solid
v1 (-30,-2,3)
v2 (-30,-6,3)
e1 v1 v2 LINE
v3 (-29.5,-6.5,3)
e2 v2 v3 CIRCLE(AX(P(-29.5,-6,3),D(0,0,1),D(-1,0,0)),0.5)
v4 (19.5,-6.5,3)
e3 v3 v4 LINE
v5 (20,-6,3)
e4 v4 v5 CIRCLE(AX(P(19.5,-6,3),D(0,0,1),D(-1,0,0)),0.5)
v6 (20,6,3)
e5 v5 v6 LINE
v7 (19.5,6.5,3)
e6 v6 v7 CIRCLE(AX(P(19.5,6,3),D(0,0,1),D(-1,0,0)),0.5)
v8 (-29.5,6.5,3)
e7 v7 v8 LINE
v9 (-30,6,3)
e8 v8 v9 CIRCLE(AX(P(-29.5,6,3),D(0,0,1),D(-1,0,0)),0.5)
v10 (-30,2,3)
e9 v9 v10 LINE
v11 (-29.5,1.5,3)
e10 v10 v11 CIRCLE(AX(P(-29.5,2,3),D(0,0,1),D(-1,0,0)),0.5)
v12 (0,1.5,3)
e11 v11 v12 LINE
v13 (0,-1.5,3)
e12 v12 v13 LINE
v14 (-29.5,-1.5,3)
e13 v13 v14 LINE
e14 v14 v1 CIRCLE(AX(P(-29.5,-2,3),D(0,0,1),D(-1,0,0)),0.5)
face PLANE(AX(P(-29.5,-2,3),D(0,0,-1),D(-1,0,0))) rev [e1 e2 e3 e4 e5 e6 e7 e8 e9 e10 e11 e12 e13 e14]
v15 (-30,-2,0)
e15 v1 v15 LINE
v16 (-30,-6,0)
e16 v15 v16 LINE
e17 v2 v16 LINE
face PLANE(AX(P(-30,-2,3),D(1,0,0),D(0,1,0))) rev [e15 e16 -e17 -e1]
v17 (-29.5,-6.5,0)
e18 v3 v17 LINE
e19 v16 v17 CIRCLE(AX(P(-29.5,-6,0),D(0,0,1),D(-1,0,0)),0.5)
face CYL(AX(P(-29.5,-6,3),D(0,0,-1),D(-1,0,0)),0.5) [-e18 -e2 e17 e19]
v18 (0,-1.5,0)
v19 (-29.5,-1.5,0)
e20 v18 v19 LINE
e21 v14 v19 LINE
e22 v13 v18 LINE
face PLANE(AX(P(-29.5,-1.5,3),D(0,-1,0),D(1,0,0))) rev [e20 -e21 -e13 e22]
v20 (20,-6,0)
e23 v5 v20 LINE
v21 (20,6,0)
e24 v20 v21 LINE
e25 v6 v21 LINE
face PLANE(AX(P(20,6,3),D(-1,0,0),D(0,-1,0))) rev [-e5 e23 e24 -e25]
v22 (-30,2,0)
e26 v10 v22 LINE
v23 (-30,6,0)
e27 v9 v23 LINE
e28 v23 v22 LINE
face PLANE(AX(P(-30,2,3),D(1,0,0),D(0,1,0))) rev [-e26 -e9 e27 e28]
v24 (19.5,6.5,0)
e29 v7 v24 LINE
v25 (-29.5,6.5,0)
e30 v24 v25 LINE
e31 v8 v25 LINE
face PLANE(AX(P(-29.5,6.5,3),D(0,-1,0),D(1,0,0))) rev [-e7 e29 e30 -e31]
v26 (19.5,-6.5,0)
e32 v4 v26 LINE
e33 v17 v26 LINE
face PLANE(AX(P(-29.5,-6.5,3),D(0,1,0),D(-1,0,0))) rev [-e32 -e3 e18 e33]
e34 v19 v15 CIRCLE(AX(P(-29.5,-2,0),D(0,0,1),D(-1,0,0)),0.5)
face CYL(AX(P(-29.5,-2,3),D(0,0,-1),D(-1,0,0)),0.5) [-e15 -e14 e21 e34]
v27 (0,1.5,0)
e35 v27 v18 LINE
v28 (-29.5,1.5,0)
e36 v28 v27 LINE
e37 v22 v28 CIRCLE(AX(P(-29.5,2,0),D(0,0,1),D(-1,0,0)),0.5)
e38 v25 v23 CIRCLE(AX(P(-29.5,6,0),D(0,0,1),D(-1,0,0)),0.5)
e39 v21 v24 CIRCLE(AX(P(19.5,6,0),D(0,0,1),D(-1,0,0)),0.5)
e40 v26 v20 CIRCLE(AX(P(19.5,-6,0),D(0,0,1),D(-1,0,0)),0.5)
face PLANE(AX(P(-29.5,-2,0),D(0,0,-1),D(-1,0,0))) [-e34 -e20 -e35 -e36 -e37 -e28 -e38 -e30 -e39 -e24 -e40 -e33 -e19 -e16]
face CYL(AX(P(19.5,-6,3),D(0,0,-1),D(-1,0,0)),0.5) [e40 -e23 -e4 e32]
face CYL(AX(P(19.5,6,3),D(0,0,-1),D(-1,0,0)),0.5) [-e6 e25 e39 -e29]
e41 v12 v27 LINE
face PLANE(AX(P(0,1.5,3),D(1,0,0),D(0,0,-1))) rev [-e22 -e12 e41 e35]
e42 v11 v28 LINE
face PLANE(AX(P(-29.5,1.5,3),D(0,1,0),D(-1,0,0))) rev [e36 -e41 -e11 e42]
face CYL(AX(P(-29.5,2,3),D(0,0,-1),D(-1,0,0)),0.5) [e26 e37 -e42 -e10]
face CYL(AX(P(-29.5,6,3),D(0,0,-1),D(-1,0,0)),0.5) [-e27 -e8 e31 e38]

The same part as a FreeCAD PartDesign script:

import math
import FreeCAD as App
import Part
import Sketcher

V = App.Vector

doc = App.newDocument("Part")
body = doc.addObject("PartDesign::Body", "Body")

# Sketch on XY plane
sketch1 = body.newObject("Sketcher::SketchObject", "Sketch")
sketch1.AttachmentSupport = (doc.getObject("XY_Plane"), [""])
sketch1.MapMode = "FlatFace"
sketch1.addGeometry(Part.LineSegment(V(-29.5, 1.5, 0), V(0, 1.5, 0)), False)
sketch1.addGeometry(Part.LineSegment(V(0, 1.5, 0), V(0, -1.5, 0)), False)
sketch1.addGeometry(Part.LineSegment(V(0, -1.5, 0), V(-29.5, -1.5, 0)), False)
sketch1.addGeometry(Part.ArcOfCircle(Part.Circle(V(-29.5, -2, 0), V(0, 0, 1), 0.5), math.radians(90), math.radians(180)), False)
sketch1.addGeometry(Part.LineSegment(V(-30, -2, 0), V(-30, -6, 0)), False)
sketch1.addGeometry(Part.ArcOfCircle(Part.Circle(V(-29.5, -6, 0), V(0, 0, 1), 0.5), math.radians(180), math.radians(270)), False)
sketch1.addGeometry(Part.LineSegment(V(-29.5, -6.5, 0), V(19.5, -6.5, 0)), False)
sketch1.addGeometry(Part.ArcOfCircle(Part.Circle(V(19.5, -6, 0), V(0, 0, 1), 0.5), math.radians(-90), math.radians(0)), False)
sketch1.addGeometry(Part.LineSegment(V(20, -6, 0), V(20, 6, 0)), False)
sketch1.addGeometry(Part.ArcOfCircle(Part.Circle(V(19.5, 6, 0), V(0, 0, 1), 0.5), math.radians(0), math.radians(90)), False)
sketch1.addGeometry(Part.LineSegment(V(19.5, 6.5, 0), V(-29.5, 6.5, 0)), False)
sketch1.addGeometry(Part.ArcOfCircle(Part.Circle(V(-29.5, 6, 0), V(0, 0, 1), 0.5), math.radians(90), math.radians(180)), False)
sketch1.addGeometry(Part.LineSegment(V(-30, 6, 0), V(-30, 2, 0)), False)
sketch1.addGeometry(Part.ArcOfCircle(Part.Circle(V(-29.5, 2, 0), V(0, 0, 1), 0.5), math.radians(180), math.radians(270)), False)
sketch1.addConstraint(Sketcher.Constraint("Coincident", 0, 2, 1, 1))
sketch1.addConstraint(Sketcher.Constraint("Coincident", 1, 2, 2, 1))
sketch1.addConstraint(Sketcher.Constraint("Tangent", 2, 2, 3, 1))
sketch1.addConstraint(Sketcher.Constraint("Tangent", 3, 2, 4, 1))
sketch1.addConstraint(Sketcher.Constraint("Tangent", 4, 2, 5, 1))
sketch1.addConstraint(Sketcher.Constraint("Tangent", 5, 2, 6, 1))
sketch1.addConstraint(Sketcher.Constraint("Tangent", 6, 2, 7, 1))
sketch1.addConstraint(Sketcher.Constraint("Tangent", 7, 2, 8, 1))
sketch1.addConstraint(Sketcher.Constraint("Tangent", 8, 2, 9, 1))
sketch1.addConstraint(Sketcher.Constraint("Tangent", 9, 2, 10, 1))
sketch1.addConstraint(Sketcher.Constraint("Tangent", 10, 2, 11, 1))
sketch1.addConstraint(Sketcher.Constraint("Tangent", 11, 2, 12, 1))
sketch1.addConstraint(Sketcher.Constraint("Tangent", 12, 2, 13, 1))
sketch1.addConstraint(Sketcher.Constraint("Tangent", 13, 2, 0, 1))
sketch1.addConstraint(Sketcher.Constraint("Horizontal", 0))
sketch1.addConstraint(Sketcher.Constraint("Vertical", 1))
sketch1.addConstraint(Sketcher.Constraint("Horizontal", 2))
sketch1.addConstraint(Sketcher.Constraint("Vertical", 4))
sketch1.addConstraint(Sketcher.Constraint("Horizontal", 6))
sketch1.addConstraint(Sketcher.Constraint("Vertical", 8))
sketch1.addConstraint(Sketcher.Constraint("Horizontal", 10))
sketch1.addConstraint(Sketcher.Constraint("Vertical", 12))
sketch1.addConstraint(Sketcher.Constraint("Equal", 3, 5))
sketch1.addConstraint(Sketcher.Constraint("Equal", 5, 7))
sketch1.addConstraint(Sketcher.Constraint("Equal", 7, 9))
sketch1.addConstraint(Sketcher.Constraint("Equal", 9, 11))
sketch1.addConstraint(Sketcher.Constraint("Equal", 11, 13))
sketch1.addConstraint(Sketcher.Constraint("Symmetric", 0, 2, 1, 2, -1, 1))
sketch1.addConstraint(Sketcher.Constraint("Symmetric", 5, 3, 11, 3, -1))
sketch1.addConstraint(Sketcher.Constraint("Radius", 3, 0.5))
sketch1.addConstraint(Sketcher.Constraint("DistanceX", 6, 1, 6, 2, 49.0))
sketch1.addConstraint(Sketcher.Constraint("DistanceY", 1, 2, 1, 1, 3.0))
sketch1.addConstraint(Sketcher.Constraint("DistanceY", 4, 2, 4, 1, 4.0))
sketch1.addConstraint(Sketcher.Constraint("DistanceX", 0, 1, 0, 2, 29.5))
pad1 = body.newObject("PartDesign::Pad", "Pad")
pad1.Profile = sketch1
pad1.Length = 3

doc.recompute()
